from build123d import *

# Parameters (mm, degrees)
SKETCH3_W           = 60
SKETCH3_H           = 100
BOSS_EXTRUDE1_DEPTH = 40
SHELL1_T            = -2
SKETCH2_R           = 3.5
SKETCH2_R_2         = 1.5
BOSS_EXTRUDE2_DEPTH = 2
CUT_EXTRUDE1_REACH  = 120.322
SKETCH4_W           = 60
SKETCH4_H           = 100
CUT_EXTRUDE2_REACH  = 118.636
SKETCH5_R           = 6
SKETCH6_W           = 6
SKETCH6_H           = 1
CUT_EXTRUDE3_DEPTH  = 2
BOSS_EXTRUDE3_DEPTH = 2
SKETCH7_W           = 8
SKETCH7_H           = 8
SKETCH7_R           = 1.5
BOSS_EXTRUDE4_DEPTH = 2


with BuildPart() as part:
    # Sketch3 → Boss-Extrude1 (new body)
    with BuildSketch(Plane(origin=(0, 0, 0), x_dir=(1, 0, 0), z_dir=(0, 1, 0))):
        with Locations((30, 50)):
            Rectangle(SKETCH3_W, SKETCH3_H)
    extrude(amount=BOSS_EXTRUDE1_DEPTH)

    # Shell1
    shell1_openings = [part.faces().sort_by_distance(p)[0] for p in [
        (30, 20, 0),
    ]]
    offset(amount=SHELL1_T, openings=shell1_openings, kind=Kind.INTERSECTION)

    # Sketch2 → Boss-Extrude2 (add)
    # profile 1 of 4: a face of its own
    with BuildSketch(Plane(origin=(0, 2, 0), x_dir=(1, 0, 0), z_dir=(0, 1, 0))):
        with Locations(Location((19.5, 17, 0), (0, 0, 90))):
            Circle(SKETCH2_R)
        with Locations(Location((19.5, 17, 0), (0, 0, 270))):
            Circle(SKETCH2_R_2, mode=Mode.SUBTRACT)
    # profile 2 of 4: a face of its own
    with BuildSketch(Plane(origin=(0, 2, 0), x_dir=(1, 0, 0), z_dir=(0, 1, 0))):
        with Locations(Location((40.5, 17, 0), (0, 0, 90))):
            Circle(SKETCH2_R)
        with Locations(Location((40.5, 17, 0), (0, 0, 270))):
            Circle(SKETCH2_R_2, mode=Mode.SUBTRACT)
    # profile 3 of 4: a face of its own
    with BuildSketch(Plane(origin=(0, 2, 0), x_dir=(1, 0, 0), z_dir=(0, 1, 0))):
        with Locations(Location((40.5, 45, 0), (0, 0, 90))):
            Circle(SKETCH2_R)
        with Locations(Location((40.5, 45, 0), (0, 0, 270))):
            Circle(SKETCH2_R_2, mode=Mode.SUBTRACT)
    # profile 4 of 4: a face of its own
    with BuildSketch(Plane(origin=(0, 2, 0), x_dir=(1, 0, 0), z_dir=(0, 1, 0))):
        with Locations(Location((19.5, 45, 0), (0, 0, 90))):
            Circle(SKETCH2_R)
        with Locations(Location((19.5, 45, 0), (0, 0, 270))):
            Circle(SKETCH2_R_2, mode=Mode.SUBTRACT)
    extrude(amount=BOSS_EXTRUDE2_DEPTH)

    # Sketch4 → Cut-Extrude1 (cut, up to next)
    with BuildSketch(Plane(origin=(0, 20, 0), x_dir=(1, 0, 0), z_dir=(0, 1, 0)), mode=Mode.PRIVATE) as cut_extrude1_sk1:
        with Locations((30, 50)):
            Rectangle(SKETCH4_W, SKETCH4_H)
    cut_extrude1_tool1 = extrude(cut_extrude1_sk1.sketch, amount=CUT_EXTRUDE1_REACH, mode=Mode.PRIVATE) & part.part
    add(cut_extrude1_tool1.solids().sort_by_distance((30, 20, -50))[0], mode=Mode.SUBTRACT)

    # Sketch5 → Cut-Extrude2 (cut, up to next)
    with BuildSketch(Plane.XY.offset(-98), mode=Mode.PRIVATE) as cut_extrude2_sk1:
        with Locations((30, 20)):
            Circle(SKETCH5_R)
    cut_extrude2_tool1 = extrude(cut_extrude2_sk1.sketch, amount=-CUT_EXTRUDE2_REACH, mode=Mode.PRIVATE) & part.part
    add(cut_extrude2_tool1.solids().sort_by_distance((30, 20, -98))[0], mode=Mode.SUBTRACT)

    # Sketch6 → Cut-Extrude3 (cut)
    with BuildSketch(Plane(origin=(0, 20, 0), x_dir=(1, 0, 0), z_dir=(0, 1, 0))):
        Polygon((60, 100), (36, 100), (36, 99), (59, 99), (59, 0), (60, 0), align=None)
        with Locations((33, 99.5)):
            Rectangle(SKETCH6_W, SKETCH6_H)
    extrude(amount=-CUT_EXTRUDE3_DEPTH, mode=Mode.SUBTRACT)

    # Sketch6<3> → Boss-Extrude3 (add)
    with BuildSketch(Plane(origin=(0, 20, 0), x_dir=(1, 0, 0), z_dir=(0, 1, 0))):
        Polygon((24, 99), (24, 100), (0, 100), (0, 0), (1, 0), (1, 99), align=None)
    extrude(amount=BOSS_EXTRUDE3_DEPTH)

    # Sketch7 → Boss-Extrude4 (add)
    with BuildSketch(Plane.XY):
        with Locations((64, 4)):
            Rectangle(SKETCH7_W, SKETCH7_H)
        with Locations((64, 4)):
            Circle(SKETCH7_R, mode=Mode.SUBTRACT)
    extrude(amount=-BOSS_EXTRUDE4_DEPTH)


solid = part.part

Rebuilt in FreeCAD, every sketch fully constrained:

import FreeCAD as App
import Part
import Sketcher

V = App.Vector
Q = App.Units.Quantity


def faces_at(feature, points):
    """Names of the faces that lie closest to the given points."""
    faces = feature.Shape.Faces
    near = lambda p: min(range(len(faces)), key=lambda i: faces[i].distToShape(Part.Vertex(*p))[0])
    return sorted({f"Face{near(p) + 1}" for p in points})


def add_polygon(sketch, points):
    """Adds a closed chain of lines whose ends are joined by coincident constraints."""
    first, n = sketch.GeometryCount, len(points)
    for a, b in zip(points, points[1:] + points[:1]):
        sketch.addGeometry(Part.LineSegment(App.Vector(*a, 0), App.Vector(*b, 0)), False)
    for i in range(n):
        sketch.addConstraint(Sketcher.Constraint("Coincident", first + i, 2, first + (i + 1) % n, 1))

doc = App.newDocument("Part")
body = doc.addObject("PartDesign::Body", "Body")

sketch1 = body.newObject("Sketcher::SketchObject", "Sketch")
sketch1.AttachmentSupport = (doc.getObject("XZ_Plane"), [""])
sketch1.MapMode = "FlatFace"
add_polygon(sketch1, [(0, -100), (0, 0), (60, 0), (60, -100)])
sketch1.addConstraint([
    Sketcher.Constraint("Vertical", 0),
    Sketcher.Constraint("Horizontal", 1),
    Sketcher.Constraint("Vertical", 2),
    Sketcher.Constraint("Horizontal", 3),
    Sketcher.Constraint("Coincident", 0, 2, -1, 1),
    Sketcher.Constraint("DistanceX", 1, 1, 1, 2, Q("60 mm")),
    Sketcher.Constraint("DistanceY", 0, 1, 0, 2, Q("100 mm")),
])
pad1 = body.newObject("PartDesign::Pad", "Pad")
pad1.Profile = sketch1
pad1.Length = 40
pad1.Reversed = True
doc.recompute()

thickness = body.newObject("PartDesign::Thickness", "Thickness")
thickness.Base = (pad1, faces_at(pad1, [(30, 20, 0)]))
thickness.Value = 2
thickness.Reversed = True
thickness.Join = "Intersection"

sketch2 = body.newObject("Sketcher::SketchObject", "Sketch001")
sketch2.AttachmentSupport = (doc.getObject("XZ_Plane"), [""])
sketch2.MapMode = "FlatFace"
sketch2.AttachmentOffset = App.Placement(V(0, 0, -2), App.Rotation())
sketch2.addGeometry([
    Part.Circle(V(19.5, -17, 0), V(0, 0, 1), 3.5),
    Part.Circle(V(19.5, -17, 0), V(0, 0, 1), 1.5),
    Part.Circle(V(40.5, -17, 0), V(0, 0, 1), 3.5),
    Part.Circle(V(40.5, -17, 0), V(0, 0, 1), 1.5),
    Part.Circle(V(40.5, -45, 0), V(0, 0, 1), 3.5),
    Part.Circle(V(40.5, -45, 0), V(0, 0, 1), 1.5),
    Part.Circle(V(19.5, -45, 0), V(0, 0, 1), 3.5),
    Part.Circle(V(19.5, -45, 0), V(0, 0, 1), 1.5),
], False)
sketch2.addConstraint([
    Sketcher.Constraint("Coincident", 1, 3, 0, 3),
    Sketcher.Constraint("Coincident", 3, 3, 2, 3),
    Sketcher.Constraint("Coincident", 5, 3, 4, 3),
    Sketcher.Constraint("Coincident", 7, 3, 6, 3),
    Sketcher.Constraint("Equal", 0, 2),
    Sketcher.Constraint("Equal", 1, 3),
    Sketcher.Constraint("Equal", 2, 4),
    Sketcher.Constraint("Equal", 3, 5),
    Sketcher.Constraint("Equal", 4, 6),
    Sketcher.Constraint("Equal", 5, 7),
    Sketcher.Constraint("Horizontal", 1, 3, 2, 3),
    Sketcher.Constraint("Horizontal", 5, 3, 6, 3),
    Sketcher.Constraint("Vertical", 3, 3, 4, 3),
    Sketcher.Constraint("Vertical", 1, 3, 6, 3),
    Sketcher.Constraint("Diameter", 0, Q("7 mm")),
    Sketcher.Constraint("Diameter", 1, Q("3 mm")),
    Sketcher.Constraint("DistanceY", 0, 3, -1, 1, Q("17 mm")),
    Sketcher.Constraint("DistanceY", 4, 3, -1, 1, Q("45 mm")),
    Sketcher.Constraint("DistanceX", 0, 3, 2, 3, Q("21 mm")),
    Sketcher.Constraint("DistanceX", -1, 1, 0, 3, Q("19.5 mm")),
])
pad2 = body.newObject("PartDesign::Pad", "Pad001")
pad2.Profile = sketch2
pad2.Length = 2
pad2.Reversed = True

sketch3 = body.newObject("Sketcher::SketchObject", "Sketch002")
sketch3.AttachmentSupport = (doc.getObject("XZ_Plane"), [""])
sketch3.MapMode = "FlatFace"
sketch3.AttachmentOffset = App.Placement(V(0, 0, -20), App.Rotation())
add_polygon(sketch3, [(0, -100), (0, 0), (60, 0), (60, -100)])
sketch3.addConstraint([
    Sketcher.Constraint("Vertical", 0),
    Sketcher.Constraint("Horizontal", 1),
    Sketcher.Constraint("Vertical", 2),
    Sketcher.Constraint("Horizontal", 3),
    Sketcher.Constraint("Coincident", 0, 2, -1, 1),
    Sketcher.Constraint("DistanceX", 1, 1, 1, 2, Q("60 mm")),
    Sketcher.Constraint("DistanceY", 0, 1, 0, 2, Q("100 mm")),
])
pocket1 = body.newObject("PartDesign::Pocket", "Pocket")
pocket1.Profile = sketch3
pocket1.Type = "UpToFirst"

sketch4 = body.newObject("Sketcher::SketchObject", "Sketch003")
sketch4.AttachmentSupport = (doc.getObject("XY_Plane"), [""])
sketch4.MapMode = "FlatFace"
sketch4.AttachmentOffset = App.Placement(V(0, 0, -98), App.Rotation())
sketch4.addGeometry(Part.Circle(V(30, 20, 0), V(0, 0, 1), 6), False)
sketch4.addConstraint([
    Sketcher.Constraint("Diameter", 0, Q("12 mm")),
    Sketcher.Constraint("DistanceX", -1, 1, 0, 3, Q("30 mm")),
    Sketcher.Constraint("DistanceY", -1, 1, 0, 3, Q("20 mm")),
])
pocket2 = body.newObject("PartDesign::Pocket", "Pocket001")
pocket2.Profile = sketch4
pocket2.Type = "UpToFirst"

sketch5 = body.newObject("Sketcher::SketchObject", "Sketch004")
sketch5.AttachmentSupport = (doc.getObject("XZ_Plane"), [""])
sketch5.MapMode = "FlatFace"
sketch5.AttachmentOffset = App.Placement(V(0, 0, -20), App.Rotation())
add_polygon(sketch5, [(60, -100), (30, -100), (30, -99), (59, -99), (59, 0), (60, 0)])
sketch5.addConstraint([
    Sketcher.Constraint("Horizontal", 0),
    Sketcher.Constraint("Vertical", 1),
    Sketcher.Constraint("Horizontal", 2),
    Sketcher.Constraint("Vertical", 3),
    Sketcher.Constraint("Horizontal", 4),
    Sketcher.Constraint("Vertical", 5),
    Sketcher.Constraint("PointOnObject", 3, 2, -1),
    Sketcher.Constraint("Equal", 4, 1),
    Sketcher.Constraint("DistanceX", 0, 2, 0, 1, Q("30 mm")),
    Sketcher.Constraint("DistanceX", 2, 1, 2, 2, Q("29 mm")),
    Sketcher.Constraint("DistanceY", 3, 1, 3, 2, Q("99 mm")),
    Sketcher.Constraint("DistanceX", -1, 1, 0, 2, Q("30 mm")),
])
pocket3 = body.newObject("PartDesign::Pocket", "Pocket002")
pocket3.Profile = sketch5
pocket3.Length = 2
pocket3.Reversed = True

sketch6 = body.newObject("Sketcher::SketchObject", "Sketch005")
sketch6.AttachmentSupport = (doc.getObject("XZ_Plane"), [""])
sketch6.MapMode = "FlatFace"
sketch6.AttachmentOffset = App.Placement(V(0, 0, -20), App.Rotation())
add_polygon(sketch6, [(24, -99), (24, -100), (0, -100), (0, 0), (1, 0), (1, -99)])
sketch6.addConstraint([
    Sketcher.Constraint("Vertical", 0),
    Sketcher.Constraint("Horizontal", 1),
    Sketcher.Constraint("Vertical", 2),
    Sketcher.Constraint("Horizontal", 3),
    Sketcher.Constraint("Vertical", 4),
    Sketcher.Constraint("Horizontal", 5),
    Sketcher.Constraint("Coincident", 2, 2, -1, 1),
    Sketcher.Constraint("Equal", 3, 0),
    Sketcher.Constraint("DistanceX", 1, 2, 1, 1, Q("24 mm")),
    Sketcher.Constraint("DistanceX", 3, 1, 3, 2, Q("1 mm")),
    Sketcher.Constraint("DistanceY", 2, 1, 2, 2, Q("100 mm")),
])
pad3 = body.newObject("PartDesign::Pad", "Pad002")
pad3.Profile = sketch6
pad3.Length = 2
pad3.Reversed = True

sketch7 = body.newObject("Sketcher::SketchObject", "Sketch006")
sketch7.AttachmentSupport = (doc.getObject("XY_Plane"), [""])
sketch7.MapMode = "FlatFace"
add_polygon(sketch7, [(60, 8), (60, 0), (68, 0), (68, 8)])
sketch7.addGeometry(Part.Circle(V(64, 4, 0), V(0, 0, 1), 1.5), False)
sketch7.addConstraint([
    Sketcher.Constraint("Vertical", 0),
    Sketcher.Constraint("Horizontal", 1),
    Sketcher.Constraint("Vertical", 2),
    Sketcher.Constraint("Horizontal", 3),
    Sketcher.Constraint("PointOnObject", 0, 2, -1),
    Sketcher.Constraint("Equal", 3, 0),
    Sketcher.Constraint("Diameter", 4, Q("3 mm")),
    Sketcher.Constraint("DistanceX", 1, 1, 1, 2, Q("8 mm")),
    Sketcher.Constraint("DistanceX", -1, 1, 4, 3, Q("64 mm")),
    Sketcher.Constraint("DistanceY", -1, 1, 4, 3, Q("4 mm")),
    Sketcher.Constraint("DistanceX", -1, 1, 0, 2, Q("60 mm")),
])
pad4 = body.newObject("PartDesign::Pad", "Pad003")
pad4.Profile = sketch7
pad4.Length = 2
pad4.Reversed = True

doc.recompute()
